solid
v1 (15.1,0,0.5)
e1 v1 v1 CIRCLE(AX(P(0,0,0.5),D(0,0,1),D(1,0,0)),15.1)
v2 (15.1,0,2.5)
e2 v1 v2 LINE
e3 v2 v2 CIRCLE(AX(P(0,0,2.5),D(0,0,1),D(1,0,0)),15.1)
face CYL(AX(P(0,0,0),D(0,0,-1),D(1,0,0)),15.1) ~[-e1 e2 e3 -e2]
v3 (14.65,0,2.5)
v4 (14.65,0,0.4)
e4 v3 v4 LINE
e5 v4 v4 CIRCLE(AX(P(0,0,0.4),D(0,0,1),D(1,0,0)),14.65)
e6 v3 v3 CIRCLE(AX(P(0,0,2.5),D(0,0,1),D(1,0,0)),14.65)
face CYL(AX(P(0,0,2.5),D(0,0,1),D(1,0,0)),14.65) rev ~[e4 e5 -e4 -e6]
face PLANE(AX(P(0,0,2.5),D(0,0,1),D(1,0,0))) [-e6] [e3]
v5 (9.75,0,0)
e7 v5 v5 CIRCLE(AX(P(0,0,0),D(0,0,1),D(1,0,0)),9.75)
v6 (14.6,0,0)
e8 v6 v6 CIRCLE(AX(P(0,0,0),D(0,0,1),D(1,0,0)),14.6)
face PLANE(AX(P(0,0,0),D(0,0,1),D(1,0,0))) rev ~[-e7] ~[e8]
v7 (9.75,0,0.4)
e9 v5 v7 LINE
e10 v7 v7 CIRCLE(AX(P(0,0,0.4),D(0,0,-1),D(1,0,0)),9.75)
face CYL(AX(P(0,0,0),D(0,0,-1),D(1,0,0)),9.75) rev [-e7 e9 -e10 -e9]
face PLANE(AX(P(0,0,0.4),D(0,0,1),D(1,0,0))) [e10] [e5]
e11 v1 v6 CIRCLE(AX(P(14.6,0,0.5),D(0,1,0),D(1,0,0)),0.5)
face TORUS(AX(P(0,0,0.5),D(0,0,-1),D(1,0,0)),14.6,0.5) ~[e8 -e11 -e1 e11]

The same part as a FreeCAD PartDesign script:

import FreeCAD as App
import Part
import Sketcher
from FreeCAD import Vector


def edges_at(feature, points):
    """Names of the edges that pass closest to the given points."""
    edges = feature.Shape.Edges
    near = lambda p: min(range(len(edges)), key=lambda i: edges[i].distToShape(Part.Vertex(*p))[0])
    return sorted({f"Edge{near(p) + 1}" for p in points})

doc = App.newDocument("Part")
body = doc.addObject("PartDesign::Body", "Body")

# Sketch on XY plane
sketch1 = body.newObject("Sketcher::SketchObject", "Sketch")
sketch1.AttachmentSupport = (doc.getObject("XY_Plane"), [""])
sketch1.MapMode = "FlatFace"
sketch1.addGeometry(Part.Circle(Vector(0, 0, 0), Vector(0, 0, 1), 15.1), False)
sketch1.addGeometry(Part.Circle(Vector(0, 0, 0), Vector(0, 0, 1), 9.75), False)
sketch1.addConstraint(Sketcher.Constraint("Coincident", 0, 3, -1, 1))
sketch1.addConstraint(Sketcher.Constraint("Coincident", 1, 3, -1, 1))
sketch1.addConstraint(Sketcher.Constraint("Diameter", 0, 30.2))
sketch1.addConstraint(Sketcher.Constraint("Diameter", 1, 19.5))
pad1 = body.newObject("PartDesign::Pad", "Pad")
pad1.Profile = sketch1
pad1.Length = 2.5

# Sketch on XY plane
sketch2 = body.newObject("Sketcher::SketchObject", "Sketch001")
sketch2.AttachmentSupport = (doc.getObject("XY_Plane"), [""])
sketch2.MapMode = "FlatFace"
sketch2.AttachmentOffset = App.Placement(Vector(0, 0, 2.5), App.Rotation())
sketch2.addGeometry(Part.Circle(Vector(0, 0, 0), Vector(0, 0, 1), 14.65), False)
sketch2.addConstraint(Sketcher.Constraint("Coincident", 0, 3, -1, 1))
sketch2.addConstraint(Sketcher.Constraint("Diameter", 0, 29.3))
pocket1 = body.newObject("PartDesign::Pocket", "Pocket")
pocket1.Profile = sketch2
pocket1.Length = 2.1
doc.recompute()

fillet = body.newObject("PartDesign::Fillet", "Fillet")
fillet.Base = (pocket1, edges_at(pocket1, [(-15.1, 0, 0)]))
fillet.Radius = 0.5

doc.recompute()
